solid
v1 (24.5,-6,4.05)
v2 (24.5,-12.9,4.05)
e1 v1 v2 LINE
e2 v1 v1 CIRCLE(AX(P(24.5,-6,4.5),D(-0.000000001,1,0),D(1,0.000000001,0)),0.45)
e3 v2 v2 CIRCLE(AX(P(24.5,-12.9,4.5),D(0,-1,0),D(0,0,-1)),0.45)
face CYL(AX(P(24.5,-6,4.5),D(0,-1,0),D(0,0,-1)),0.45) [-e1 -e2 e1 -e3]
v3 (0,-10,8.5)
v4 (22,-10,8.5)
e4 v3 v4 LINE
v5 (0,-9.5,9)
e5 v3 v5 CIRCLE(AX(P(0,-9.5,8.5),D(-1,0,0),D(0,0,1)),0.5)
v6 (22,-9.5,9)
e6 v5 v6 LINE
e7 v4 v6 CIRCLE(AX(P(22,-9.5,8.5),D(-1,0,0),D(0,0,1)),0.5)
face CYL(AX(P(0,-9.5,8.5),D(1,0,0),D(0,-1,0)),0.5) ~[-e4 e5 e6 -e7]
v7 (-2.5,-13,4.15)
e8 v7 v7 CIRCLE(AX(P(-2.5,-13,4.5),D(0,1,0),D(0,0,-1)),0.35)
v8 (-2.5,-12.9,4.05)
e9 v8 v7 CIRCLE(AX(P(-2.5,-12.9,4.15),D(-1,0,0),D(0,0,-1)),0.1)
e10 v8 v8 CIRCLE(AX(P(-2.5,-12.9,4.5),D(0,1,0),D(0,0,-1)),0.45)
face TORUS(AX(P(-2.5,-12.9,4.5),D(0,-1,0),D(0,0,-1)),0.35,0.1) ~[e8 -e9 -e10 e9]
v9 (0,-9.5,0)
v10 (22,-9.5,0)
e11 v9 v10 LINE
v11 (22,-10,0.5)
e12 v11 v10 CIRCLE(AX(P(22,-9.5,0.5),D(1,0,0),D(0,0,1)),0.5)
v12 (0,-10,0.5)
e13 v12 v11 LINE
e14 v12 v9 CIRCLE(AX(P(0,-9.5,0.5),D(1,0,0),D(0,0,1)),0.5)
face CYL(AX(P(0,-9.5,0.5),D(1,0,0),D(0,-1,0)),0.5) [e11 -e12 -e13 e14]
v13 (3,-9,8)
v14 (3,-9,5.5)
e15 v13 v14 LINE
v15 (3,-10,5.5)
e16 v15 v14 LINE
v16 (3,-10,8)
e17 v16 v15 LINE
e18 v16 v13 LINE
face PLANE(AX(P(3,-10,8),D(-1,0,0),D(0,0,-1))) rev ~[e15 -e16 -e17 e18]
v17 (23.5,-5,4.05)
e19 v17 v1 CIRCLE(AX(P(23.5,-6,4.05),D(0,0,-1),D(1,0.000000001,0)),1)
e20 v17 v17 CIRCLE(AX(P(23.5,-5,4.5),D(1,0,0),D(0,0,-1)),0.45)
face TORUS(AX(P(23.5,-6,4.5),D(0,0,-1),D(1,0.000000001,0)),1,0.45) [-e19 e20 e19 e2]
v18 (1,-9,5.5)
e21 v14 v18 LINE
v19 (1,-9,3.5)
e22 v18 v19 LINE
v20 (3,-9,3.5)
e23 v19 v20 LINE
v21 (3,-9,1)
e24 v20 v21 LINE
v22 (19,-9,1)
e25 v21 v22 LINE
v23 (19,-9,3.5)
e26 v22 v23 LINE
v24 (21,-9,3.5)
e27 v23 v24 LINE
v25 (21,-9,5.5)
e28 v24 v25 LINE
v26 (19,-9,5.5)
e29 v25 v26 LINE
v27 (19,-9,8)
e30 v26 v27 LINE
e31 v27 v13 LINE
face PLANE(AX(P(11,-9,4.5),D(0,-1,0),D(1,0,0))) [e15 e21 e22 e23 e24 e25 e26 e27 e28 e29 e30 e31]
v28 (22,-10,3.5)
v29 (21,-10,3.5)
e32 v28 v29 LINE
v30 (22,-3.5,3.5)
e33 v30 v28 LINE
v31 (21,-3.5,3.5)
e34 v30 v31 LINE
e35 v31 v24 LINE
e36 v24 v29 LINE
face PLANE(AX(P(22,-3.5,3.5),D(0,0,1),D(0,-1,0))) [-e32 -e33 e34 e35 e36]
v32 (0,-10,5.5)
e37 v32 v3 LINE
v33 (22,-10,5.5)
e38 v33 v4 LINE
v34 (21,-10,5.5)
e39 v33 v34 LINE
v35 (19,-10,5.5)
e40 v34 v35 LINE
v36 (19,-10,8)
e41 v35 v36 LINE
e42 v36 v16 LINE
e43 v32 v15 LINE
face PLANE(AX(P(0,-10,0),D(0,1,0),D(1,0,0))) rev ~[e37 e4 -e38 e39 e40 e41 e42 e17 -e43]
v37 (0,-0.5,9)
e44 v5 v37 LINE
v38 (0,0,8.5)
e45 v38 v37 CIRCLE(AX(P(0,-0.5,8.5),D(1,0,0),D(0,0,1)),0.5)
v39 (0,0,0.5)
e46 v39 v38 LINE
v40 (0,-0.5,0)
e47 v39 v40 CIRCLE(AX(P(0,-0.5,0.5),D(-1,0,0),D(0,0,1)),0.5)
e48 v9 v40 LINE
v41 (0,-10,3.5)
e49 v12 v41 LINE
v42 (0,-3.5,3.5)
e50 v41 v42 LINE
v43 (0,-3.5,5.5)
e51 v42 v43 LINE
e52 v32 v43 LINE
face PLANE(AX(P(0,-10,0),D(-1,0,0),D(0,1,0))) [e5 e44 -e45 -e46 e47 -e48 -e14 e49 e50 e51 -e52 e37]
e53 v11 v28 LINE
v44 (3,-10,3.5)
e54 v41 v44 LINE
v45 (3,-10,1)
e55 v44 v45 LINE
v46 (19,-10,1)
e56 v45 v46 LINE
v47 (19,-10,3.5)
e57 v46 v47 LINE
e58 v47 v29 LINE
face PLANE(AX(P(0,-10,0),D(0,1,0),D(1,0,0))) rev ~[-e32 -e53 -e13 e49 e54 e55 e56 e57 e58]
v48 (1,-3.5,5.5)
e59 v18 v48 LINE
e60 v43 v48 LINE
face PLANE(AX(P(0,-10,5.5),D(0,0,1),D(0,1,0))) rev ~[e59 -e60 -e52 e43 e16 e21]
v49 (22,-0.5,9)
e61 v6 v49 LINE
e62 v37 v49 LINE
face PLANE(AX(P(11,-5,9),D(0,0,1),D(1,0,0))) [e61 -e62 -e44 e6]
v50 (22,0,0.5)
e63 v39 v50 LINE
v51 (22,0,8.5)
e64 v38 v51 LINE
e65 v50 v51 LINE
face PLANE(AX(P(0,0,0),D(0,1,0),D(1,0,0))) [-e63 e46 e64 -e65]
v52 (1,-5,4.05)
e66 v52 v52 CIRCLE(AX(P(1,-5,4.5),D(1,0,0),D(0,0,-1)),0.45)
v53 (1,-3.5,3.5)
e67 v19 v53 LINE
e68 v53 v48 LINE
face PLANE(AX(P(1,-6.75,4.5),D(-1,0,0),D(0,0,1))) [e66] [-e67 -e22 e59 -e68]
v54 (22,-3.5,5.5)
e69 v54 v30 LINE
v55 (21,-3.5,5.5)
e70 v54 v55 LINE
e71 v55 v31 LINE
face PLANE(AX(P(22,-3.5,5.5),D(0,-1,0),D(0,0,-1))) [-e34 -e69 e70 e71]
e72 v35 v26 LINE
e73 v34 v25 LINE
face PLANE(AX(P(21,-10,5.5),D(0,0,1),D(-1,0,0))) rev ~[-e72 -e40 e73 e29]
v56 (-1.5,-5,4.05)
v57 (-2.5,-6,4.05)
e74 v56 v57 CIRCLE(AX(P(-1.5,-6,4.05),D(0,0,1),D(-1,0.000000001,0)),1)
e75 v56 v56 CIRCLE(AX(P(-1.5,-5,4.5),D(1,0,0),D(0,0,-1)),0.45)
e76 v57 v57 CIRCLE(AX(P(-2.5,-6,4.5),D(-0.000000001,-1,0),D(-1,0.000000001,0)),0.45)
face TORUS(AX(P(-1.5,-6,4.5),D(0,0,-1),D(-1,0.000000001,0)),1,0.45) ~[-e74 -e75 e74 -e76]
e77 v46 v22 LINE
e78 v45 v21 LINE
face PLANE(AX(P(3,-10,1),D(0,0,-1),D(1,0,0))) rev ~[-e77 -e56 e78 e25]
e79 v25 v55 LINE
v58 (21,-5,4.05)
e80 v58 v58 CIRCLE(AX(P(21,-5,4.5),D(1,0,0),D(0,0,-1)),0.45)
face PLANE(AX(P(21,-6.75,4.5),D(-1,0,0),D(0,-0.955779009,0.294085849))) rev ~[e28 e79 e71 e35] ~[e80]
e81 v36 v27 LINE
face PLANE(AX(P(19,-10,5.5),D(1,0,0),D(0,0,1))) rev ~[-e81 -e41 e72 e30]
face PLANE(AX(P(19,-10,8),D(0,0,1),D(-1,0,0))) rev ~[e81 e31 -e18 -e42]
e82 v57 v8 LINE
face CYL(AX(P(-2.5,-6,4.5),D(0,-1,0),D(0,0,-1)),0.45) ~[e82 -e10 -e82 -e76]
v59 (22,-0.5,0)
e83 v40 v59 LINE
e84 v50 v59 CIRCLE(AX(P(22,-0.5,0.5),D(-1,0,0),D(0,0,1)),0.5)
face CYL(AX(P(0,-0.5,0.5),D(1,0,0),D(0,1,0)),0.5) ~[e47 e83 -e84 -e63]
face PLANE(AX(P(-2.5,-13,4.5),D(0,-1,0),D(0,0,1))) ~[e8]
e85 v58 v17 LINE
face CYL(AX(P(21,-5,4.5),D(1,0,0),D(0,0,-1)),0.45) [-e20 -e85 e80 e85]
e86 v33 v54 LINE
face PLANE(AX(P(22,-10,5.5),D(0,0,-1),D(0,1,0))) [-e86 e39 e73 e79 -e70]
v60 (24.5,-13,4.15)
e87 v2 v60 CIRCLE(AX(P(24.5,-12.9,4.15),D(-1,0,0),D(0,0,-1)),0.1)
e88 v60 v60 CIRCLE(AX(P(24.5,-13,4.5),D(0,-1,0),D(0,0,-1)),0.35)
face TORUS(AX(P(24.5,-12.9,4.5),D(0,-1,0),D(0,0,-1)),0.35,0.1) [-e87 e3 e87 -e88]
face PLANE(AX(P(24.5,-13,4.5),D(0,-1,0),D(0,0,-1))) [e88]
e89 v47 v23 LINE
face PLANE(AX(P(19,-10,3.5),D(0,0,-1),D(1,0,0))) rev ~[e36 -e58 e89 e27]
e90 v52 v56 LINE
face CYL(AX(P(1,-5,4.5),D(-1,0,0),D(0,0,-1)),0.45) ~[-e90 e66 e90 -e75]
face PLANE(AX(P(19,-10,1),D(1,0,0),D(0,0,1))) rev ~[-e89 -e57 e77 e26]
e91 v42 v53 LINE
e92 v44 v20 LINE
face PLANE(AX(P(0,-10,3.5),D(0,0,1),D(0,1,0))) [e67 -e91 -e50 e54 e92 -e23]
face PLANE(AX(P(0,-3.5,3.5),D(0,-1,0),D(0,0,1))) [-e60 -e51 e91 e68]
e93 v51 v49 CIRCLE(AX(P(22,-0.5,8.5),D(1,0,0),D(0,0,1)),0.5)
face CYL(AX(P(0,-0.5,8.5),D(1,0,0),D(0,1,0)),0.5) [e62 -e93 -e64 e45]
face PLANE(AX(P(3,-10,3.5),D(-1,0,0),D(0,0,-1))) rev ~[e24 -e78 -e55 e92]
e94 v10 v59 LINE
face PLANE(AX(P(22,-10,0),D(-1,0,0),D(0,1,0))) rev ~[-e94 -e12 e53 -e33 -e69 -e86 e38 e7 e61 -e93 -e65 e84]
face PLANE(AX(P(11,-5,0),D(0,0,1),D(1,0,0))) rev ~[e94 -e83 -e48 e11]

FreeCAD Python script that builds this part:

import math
import FreeCAD as App
import Part
import Sketcher


def edges_at(feature, points):
    """Names of the edges that pass closest to the given points."""
    edges = feature.Shape.Edges
    near = lambda p: min(range(len(edges)), key=lambda i: edges[i].distToShape(Part.Vertex(*p))[0])
    return sorted({f"Edge{near(p) + 1}" for p in points})


def add_polygon(sketch, points):
    """Adds a closed chain of lines whose ends are joined by coincident constraints."""
    first, n = sketch.GeometryCount, len(points)
    for a, b in zip(points, points[1:] + points[:1]):
        sketch.addGeometry(Part.LineSegment(App.Vector(*a, 0), App.Vector(*b, 0)), False)
    for i in range(n):
        sketch.addConstraint(Sketcher.Constraint("Coincident", first + i, 2, first + (i + 1) % n, 1))

doc = App.newDocument("Part")
body = doc.addObject("PartDesign::Body", "Body")

# Sketch on XY plane
sketch1 = body.newObject("Sketcher::SketchObject", "Sketch")
sketch1.AttachmentSupport = (doc.getObject("XY_Plane"), [""])
sketch1.MapMode = "FlatFace"
add_polygon(sketch1, [(0, 0), (0, -10), (22, -10), (22, 0)])  # lines 0-3
sketch1.addConstraint(Sketcher.Constraint("Vertical", 0))
sketch1.addConstraint(Sketcher.Constraint("Horizontal", 1))
sketch1.addConstraint(Sketcher.Constraint("Vertical", 2))
sketch1.addConstraint(Sketcher.Constraint("Horizontal", 3))
sketch1.addConstraint(Sketcher.Constraint("Coincident", 3, 2, -1, 1))
sketch1.addConstraint(Sketcher.Constraint("DistanceX", 1, 1, 1, 2, 22.0))
sketch1.addConstraint(Sketcher.Constraint("DistanceY", 0, 2, 0, 1, 10.0))
pad1 = body.newObject("PartDesign::Pad", "Pad")
pad1.Profile = sketch1
pad1.Length = 9
doc.recompute()

fillet = body.newObject("PartDesign::Fillet", "Fillet")
fillet.Base = (pad1, edges_at(pad1, [
    (11, 0, 9),
    (11, 0, 0),
    (11, -10, 0),
    (11, -10, 9),
]))
fillet.Radius = 0.5

# Sketch on YZ plane
sketch2 = body.newObject("Sketcher::SketchObject", "Sketch001")
sketch2.AttachmentSupport = (doc.getObject("YZ_Plane"), [""])
sketch2.MapMode = "FlatFace"
sketch2.AttachmentOffset = App.Placement(App.Vector(0, 0, 22), App.Rotation())
add_polygon(sketch2, [(-3.5, 5.5), (-10, 5.5), (-10, 3.5), (-3.5, 3.5)])  # lines 0-3
sketch2.addConstraint(Sketcher.Constraint("Horizontal", 0))
sketch2.addConstraint(Sketcher.Constraint("Vertical", 1))
sketch2.addConstraint(Sketcher.Constraint("Horizontal", 2))
sketch2.addConstraint(Sketcher.Constraint("Vertical", 3))
sketch2.addConstraint(Sketcher.Constraint("DistanceY", 1, 2, 1, 1, 2.0))
sketch2.addConstraint(Sketcher.Constraint("DistanceX", 0, 2, 0, 1, 6.5))
sketch2.addConstraint(Sketcher.Constraint("DistanceX", 0, 2, -1, 1, 10.0))
sketch2.addConstraint(Sketcher.Constraint("DistanceY", -1, 1, 0, 2, 5.5))
pocket1 = body.newObject("PartDesign::Pocket", "Pocket")
pocket1.Profile = sketch2
pocket1.Length = 1

# Sketch on YZ plane
sketch3 = body.newObject("Sketcher::SketchObject", "Sketch002")
sketch3.AttachmentSupport = (doc.getObject("YZ_Plane"), [""])
sketch3.MapMode = "FlatFace"
add_polygon(sketch3, [(-3.5, 3.5), (-10, 3.5), (-10, 5.5), (-3.5, 5.5)])  # lines 0-3
sketch3.addConstraint(Sketcher.Constraint("Horizontal", 0))
sketch3.addConstraint(Sketcher.Constraint("Vertical", 1))
sketch3.addConstraint(Sketcher.Constraint("Horizontal", 2))
sketch3.addConstraint(Sketcher.Constraint("Vertical", 3))
sketch3.addConstraint(Sketcher.Constraint("DistanceY", 1, 1, 1, 2, 2.0))
sketch3.addConstraint(Sketcher.Constraint("DistanceX", 0, 2, 0, 1, 6.5))
sketch3.addConstraint(Sketcher.Constraint("DistanceX", 0, 2, -1, 1, 10.0))
sketch3.addConstraint(Sketcher.Constraint("DistanceY", -1, 1, 0, 2, 3.5))
pocket2 = body.newObject("PartDesign::Pocket", "Pocket001")
pocket2.Profile = sketch3
pocket2.Length = 1
pocket2.Reversed = True

# Sketch on XZ plane
sketch4 = body.newObject("Sketcher::SketchObject", "Sketch003")
sketch4.AttachmentSupport = (doc.getObject("XZ_Plane"), [""])
sketch4.MapMode = "FlatFace"
sketch4.AttachmentOffset = App.Placement(App.Vector(0, 0, 10), App.Rotation())
add_polygon(sketch4, [(1, 5.5), (1, 3.5), (3, 3.5), (3, 1), (19, 1), (19, 3.5), (21, 3.5), (21, 5.5), (19, 5.5), (19, 8), (3, 8), (3, 5.5)])  # lines 0-11
sketch4.addConstraint(Sketcher.Constraint("Vertical", 0))
sketch4.addConstraint(Sketcher.Constraint("Horizontal", 1))
sketch4.addConstraint(Sketcher.Constraint("Vertical", 2))
sketch4.addConstraint(Sketcher.Constraint("Horizontal", 3))
sketch4.addConstraint(Sketcher.Constraint("Vertical", 4))
sketch4.addConstraint(Sketcher.Constraint("Horizontal", 5))
sketch4.addConstraint(Sketcher.Constraint("Vertical", 6))
sketch4.addConstraint(Sketcher.Constraint("Horizontal", 7))
sketch4.addConstraint(Sketcher.Constraint("Vertical", 8))
sketch4.addConstraint(Sketcher.Constraint("Horizontal", 9))
sketch4.addConstraint(Sketcher.Constraint("Vertical", 10))
sketch4.addConstraint(Sketcher.Constraint("Horizontal", 11))
sketch4.addConstraint(Sketcher.Constraint("Horizontal", 1, 2, 4, 2))
sketch4.addConstraint(Sketcher.Constraint("Horizontal", 7, 2, 10, 2))
sketch4.addConstraint(Sketcher.Constraint("Vertical", 4, 2, 7, 2))
sketch4.addConstraint(Sketcher.Constraint("Vertical", 2, 2, 9, 2))
sketch4.addConstraint(Sketcher.Constraint("Equal", 1, 5))
sketch4.addConstraint(Sketcher.Constraint("Equal", 11, 0))
sketch4.addConstraint(Sketcher.Constraint("Equal", 4, 8))
sketch4.addConstraint(Sketcher.Constraint("DistanceX", 1, 1, 1, 2, 2.0))
sketch4.addConstraint(Sketcher.Constraint("DistanceX", 3, 1, 3, 2, 16.0))
sketch4.addConstraint(Sketcher.Constraint("DistanceY", 2, 2, 2, 1, 2.5))
sketch4.addConstraint(Sketcher.Constraint("DistanceX", -1, 1, 0, 2, 1.0))
sketch4.addConstraint(Sketcher.Constraint("DistanceY", -1, 1, 2, 2, 1.0))
pocket3 = body.newObject("PartDesign::Pocket", "Pocket002")
pocket3.Profile = sketch4
pocket3.Length = 1

# Sketch on YZ plane
sketch5 = body.newObject("Sketcher::SketchObject", "Sketch004")
sketch5.AttachmentSupport = (doc.getObject("YZ_Plane"), [""])
sketch5.MapMode = "FlatFace"
sketch5.AttachmentOffset = App.Placement(App.Vector(0, 0, 21), App.Rotation())
sketch5.addGeometry(Part.Circle(App.Vector(-5, 4.5, 0), App.Vector(0, 0, 1), 0.45), False)
sketch5.addConstraint(Sketcher.Constraint("Diameter", 0, 0.9))
sketch5.addConstraint(Sketcher.Constraint("DistanceX", 0, 3, -1, 1, 5.0))
sketch5.addConstraint(Sketcher.Constraint("DistanceY", -1, 1, 0, 3, 4.5))

# Sketch on XY plane
sketch6 = body.newObject("Sketcher::SketchObject", "Sketch005")
sketch6.AttachmentSupport = (doc.getObject("XY_Plane"), [""])
sketch6.MapMode = "FlatFace"
sketch6.AttachmentOffset = App.Placement(App.Vector(0, 0, 4.5), App.Rotation())
sketch6.addGeometry(Part.LineSegment(App.Vector(21, -5, 0), App.Vector(23.5, -5, 0)), False)
sketch6.addGeometry(Part.ArcOfCircle(Part.Circle(App.Vector(23.5, -6, 0), App.Vector(0, 0, 1), 1), math.radians(0), math.radians(90)), False)
sketch6.addGeometry(Part.LineSegment(App.Vector(24.5, -6, 0), App.Vector(24.5, -13, 0)), False)
sketch6.addConstraint(Sketcher.Constraint("Tangent", 0, 2, 1, 2))
sketch6.addConstraint(Sketcher.Constraint("Tangent", 1, 1, 2, 1))
sketch6.addConstraint(Sketcher.Constraint("Horizontal", 0))
sketch6.addConstraint(Sketcher.Constraint("Vertical", 2))
sketch6.addConstraint(Sketcher.Constraint("Radius", 1, 1.0))
sketch6.addConstraint(Sketcher.Constraint("DistanceY", 2, 2, 2, 1, 7.0))
sketch6.addConstraint(Sketcher.Constraint("DistanceX", 0, 1, 0, 2, 2.5))
sketch6.addConstraint(Sketcher.Constraint("DistanceY", 1, 3, -1, 1, 6.0))
sketch6.addConstraint(Sketcher.Constraint("DistanceX", -1, 1, 0, 1, 21.0))
doc.recompute()

additivepipe = body.newObject("PartDesign::AdditivePipe", "AdditivePipe")
additivepipe.Profile = sketch5
additivepipe.Spine = (sketch6, ["Edge1", "Edge2", "Edge3"])
doc.recompute()

datumplane = body.newObject("PartDesign::Plane", "DatumPlane")
datumplane.AttachmentSupport = (doc.getObject("YZ_Plane"), [""])
datumplane.MapMode = "FlatFace"
datumplane.AttachmentOffset = App.Placement(App.Vector(0, 0, 11), App.Rotation())
mirrored = body.newObject("PartDesign::Mirrored", "Mirrored")
mirrored.Originals = [additivepipe]
mirrored.MirrorPlane = (datumplane, [""])
body.Tip = mirrored
doc.recompute()

fillet2 = body.newObject("PartDesign::Fillet", "Fillet001")
fillet2.Base = (mirrored, edges_at(mirrored, [(24.5, -13, 4.95), (-2.5, -13, 4.95)]))
fillet2.Radius = 0.1

doc.recompute()
